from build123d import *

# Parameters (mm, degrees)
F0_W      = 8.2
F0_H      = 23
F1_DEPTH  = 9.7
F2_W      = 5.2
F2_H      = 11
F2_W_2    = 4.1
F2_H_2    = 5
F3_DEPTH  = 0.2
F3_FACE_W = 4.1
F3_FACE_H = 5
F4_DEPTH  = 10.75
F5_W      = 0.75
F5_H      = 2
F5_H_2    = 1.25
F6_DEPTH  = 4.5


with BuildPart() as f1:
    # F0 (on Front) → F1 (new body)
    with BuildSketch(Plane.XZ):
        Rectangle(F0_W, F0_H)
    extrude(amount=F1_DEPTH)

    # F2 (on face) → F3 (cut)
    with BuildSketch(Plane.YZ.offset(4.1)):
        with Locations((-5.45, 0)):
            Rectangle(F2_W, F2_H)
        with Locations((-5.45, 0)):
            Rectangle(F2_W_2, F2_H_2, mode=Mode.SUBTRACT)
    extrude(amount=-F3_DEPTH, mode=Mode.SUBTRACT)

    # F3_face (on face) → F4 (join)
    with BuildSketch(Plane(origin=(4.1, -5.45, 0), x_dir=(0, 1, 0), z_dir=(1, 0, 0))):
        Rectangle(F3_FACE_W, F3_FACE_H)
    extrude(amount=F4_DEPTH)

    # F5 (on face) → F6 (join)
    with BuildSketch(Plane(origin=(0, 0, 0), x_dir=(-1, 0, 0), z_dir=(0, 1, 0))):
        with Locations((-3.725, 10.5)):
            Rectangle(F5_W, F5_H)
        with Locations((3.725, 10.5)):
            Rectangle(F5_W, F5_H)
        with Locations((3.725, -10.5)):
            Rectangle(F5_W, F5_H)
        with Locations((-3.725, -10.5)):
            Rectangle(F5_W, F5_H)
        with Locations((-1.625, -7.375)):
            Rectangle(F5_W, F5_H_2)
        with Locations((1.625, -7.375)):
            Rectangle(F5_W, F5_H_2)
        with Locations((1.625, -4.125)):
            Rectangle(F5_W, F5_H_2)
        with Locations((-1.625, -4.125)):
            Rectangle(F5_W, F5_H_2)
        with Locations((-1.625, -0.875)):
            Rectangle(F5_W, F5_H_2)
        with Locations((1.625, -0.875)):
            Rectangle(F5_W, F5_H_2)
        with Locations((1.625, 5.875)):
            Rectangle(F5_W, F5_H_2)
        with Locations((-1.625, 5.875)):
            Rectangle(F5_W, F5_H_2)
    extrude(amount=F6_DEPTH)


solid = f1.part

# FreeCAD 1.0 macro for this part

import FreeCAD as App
import Part
import Sketcher
from FreeCAD import Vector

doc = App.newDocument("Part")
body = doc.addObject("PartDesign::Body", "Body")

# Sketch on XZ plane
sketch1 = doc.addObject("Sketcher::SketchObject", "Sketch")
body.addObject(sketch1)
sketch1.AttachmentSupport = (doc.XZ_Plane, [""])
sketch1.MapMode = "FlatFace"
sketch1.addGeometry(Part.LineSegment(Vector(-4.1, 11.5, 0), Vector(-4.1, -11.5, 0)), False)
sketch1.addGeometry(Part.LineSegment(Vector(-4.1, -11.5, 0), Vector(4.1, -11.5, 0)), False)
sketch1.addGeometry(Part.LineSegment(Vector(4.1, -11.5, 0), Vector(4.1, 11.5, 0)), False)
sketch1.addGeometry(Part.LineSegment(Vector(4.1, 11.5, 0), Vector(-4.1, 11.5, 0)), False)
sketch1.addConstraint(Sketcher.Constraint("Coincident", 0, 2, 1, 1))
sketch1.addConstraint(Sketcher.Constraint("Coincident", 1, 2, 2, 1))
sketch1.addConstraint(Sketcher.Constraint("Coincident", 2, 2, 3, 1))
sketch1.addConstraint(Sketcher.Constraint("Coincident", 3, 2, 0, 1))
sketch1.addConstraint(Sketcher.Constraint("Vertical", 0))
sketch1.addConstraint(Sketcher.Constraint("Horizontal", 1))
sketch1.addConstraint(Sketcher.Constraint("Vertical", 2))
sketch1.addConstraint(Sketcher.Constraint("Horizontal", 3))
sketch1.addConstraint(Sketcher.Constraint("Symmetric", 0, 2, 2, 2, -1, 1))
sketch1.addConstraint(Sketcher.Constraint("DistanceY", 0, 2, 0, 1, 23.0))
sketch1.addConstraint(Sketcher.Constraint("DistanceX", 1, 1, 1, 2, 8.2))
pad1 = doc.addObject("PartDesign::Pad", "Pad")
body.addObject(pad1)
pad1.Profile = sketch1
pad1.Length = 9.7

# Sketch on YZ plane
sketch2 = doc.addObject("Sketcher::SketchObject", "Sketch001")
body.addObject(sketch2)
sketch2.AttachmentSupport = (doc.YZ_Plane, [""])
sketch2.MapMode = "FlatFace"
sketch2.AttachmentOffset = App.Placement(Vector(0, 0, 4.1), App.Rotation())
sketch2.addGeometry(Part.LineSegment(Vector(-8.05, 5.5, 0), Vector(-8.05, -5.5, 0)), False)
sketch2.addGeometry(Part.LineSegment(Vector(-8.05, -5.5, 0), Vector(-2.85, -5.5, 0)), False)
sketch2.addGeometry(Part.LineSegment(Vector(-2.85, -5.5, 0), Vector(-2.85, 5.5, 0)), False)
sketch2.addGeometry(Part.LineSegment(Vector(-2.85, 5.5, 0), Vector(-8.05, 5.5, 0)), False)
sketch2.addGeometry(Part.LineSegment(Vector(-3.4, -2.5, 0), Vector(-7.5, -2.5, 0)), False)
sketch2.addGeometry(Part.LineSegment(Vector(-7.5, -2.5, 0), Vector(-7.5, 2.5, 0)), False)
sketch2.addGeometry(Part.LineSegment(Vector(-7.5, 2.5, 0), Vector(-3.4, 2.5, 0)), False)
sketch2.addGeometry(Part.LineSegment(Vector(-3.4, 2.5, 0), Vector(-3.4, -2.5, 0)), False)
sketch2.addConstraint(Sketcher.Constraint("Coincident", 0, 2, 1, 1))
sketch2.addConstraint(Sketcher.Constraint("Coincident", 1, 2, 2, 1))
sketch2.addConstraint(Sketcher.Constraint("Coincident", 2, 2, 3, 1))
sketch2.addConstraint(Sketcher.Constraint("Coincident", 3, 2, 0, 1))
sketch2.addConstraint(Sketcher.Constraint("Coincident", 4, 2, 5, 1))
sketch2.addConstraint(Sketcher.Constraint("Coincident", 5, 2, 6, 1))
sketch2.addConstraint(Sketcher.Constraint("Coincident", 6, 2, 7, 1))
sketch2.addConstraint(Sketcher.Constraint("Coincident", 7, 2, 4, 1))
sketch2.addConstraint(Sketcher.Constraint("Vertical", 0))
sketch2.addConstraint(Sketcher.Constraint("Horizontal", 1))
sketch2.addConstraint(Sketcher.Constraint("Vertical", 2))
sketch2.addConstraint(Sketcher.Constraint("Horizontal", 3))
sketch2.addConstraint(Sketcher.Constraint("Horizontal", 4))
sketch2.addConstraint(Sketcher.Constraint("Vertical", 5))
sketch2.addConstraint(Sketcher.Constraint("Horizontal", 6))
sketch2.addConstraint(Sketcher.Constraint("Vertical", 7))
sketch2.addConstraint(Sketcher.Constraint("DistanceY", 0, 2, 0, 1, 11.0))
sketch2.addConstraint(Sketcher.Constraint("DistanceY", 5, 1, 5, 2, 5.0))
sketch2.addConstraint(Sketcher.Constraint("DistanceX", 1, 1, 1, 2, 5.2))
sketch2.addConstraint(Sketcher.Constraint("DistanceX", 4, 2, 4, 1, 4.1))
sketch2.addConstraint(Sketcher.Constraint("DistanceY", 0, 2, 4, 2, 3.0))
sketch2.addConstraint(Sketcher.Constraint("DistanceY", 0, 2, -1, 1, 5.5))
sketch2.addConstraint(Sketcher.Constraint("DistanceX", 4, 2, -1, 1, 7.5))
sketch2.addConstraint(Sketcher.Constraint("DistanceX", 0, 2, -1, 1, 8.05))
pocket1 = doc.addObject("PartDesign::Pocket", "Pocket")
body.addObject(pocket1)
pocket1.Profile = sketch2
pocket1.Length = 0.2

# Sketch on YZ plane
sketch3 = doc.addObject("Sketcher::SketchObject", "Sketch002")
body.addObject(sketch3)
sketch3.AttachmentSupport = (doc.YZ_Plane, [""])
sketch3.MapMode = "FlatFace"
sketch3.AttachmentOffset = App.Placement(Vector(0, 0, 4.1), App.Rotation())
sketch3.addGeometry(Part.LineSegment(Vector(-7.5, 2.5, 0), Vector(-7.5, -2.5, 0)), False)
sketch3.addGeometry(Part.LineSegment(Vector(-7.5, -2.5, 0), Vector(-3.4, -2.5, 0)), False)
sketch3.addGeometry(Part.LineSegment(Vector(-3.4, -2.5, 0), Vector(-3.4, 2.5, 0)), False)
sketch3.addGeometry(Part.LineSegment(Vector(-3.4, 2.5, 0), Vector(-7.5, 2.5, 0)), False)
sketch3.addConstraint(Sketcher.Constraint("Coincident", 0, 2, 1, 1))
sketch3.addConstraint(Sketcher.Constraint("Coincident", 1, 2, 2, 1))
sketch3.addConstraint(Sketcher.Constraint("Coincident", 2, 2, 3, 1))
sketch3.addConstraint(Sketcher.Constraint("Coincident", 3, 2, 0, 1))
sketch3.addConstraint(Sketcher.Constraint("Vertical", 0))
sketch3.addConstraint(Sketcher.Constraint("Horizontal", 1))
sketch3.addConstraint(Sketcher.Constraint("Vertical", 2))
sketch3.addConstraint(Sketcher.Constraint("Horizontal", 3))
sketch3.addConstraint(Sketcher.Constraint("DistanceY", 0, 2, 0, 1, 5.0))
sketch3.addConstraint(Sketcher.Constraint("DistanceX", 1, 1, 1, 2, 4.1))
sketch3.addConstraint(Sketcher.Constraint("DistanceX", 0, 2, -1, 1, 7.5))
sketch3.addConstraint(Sketcher.Constraint("DistanceY", 0, 2, -1, 1, 2.5))
pad2 = doc.addObject("PartDesign::Pad", "Pad001")
body.addObject(pad2)
pad2.Profile = sketch3
pad2.Length = 10.75

# Sketch on XZ plane
sketch4 = doc.addObject("Sketcher::SketchObject", "Sketch003")
body.addObject(sketch4)
sketch4.AttachmentSupport = (doc.XZ_Plane, [""])
sketch4.MapMode = "FlatFace"
sketch4.addGeometry(Part.LineSegment(Vector(4.1, 11.5, 0), Vector(4.1, 9.5, 0)), False)
sketch4.addGeometry(Part.LineSegment(Vector(4.1, 9.5, 0), Vector(3.35, 9.5, 0)), False)
sketch4.addGeometry(Part.LineSegment(Vector(3.35, 9.5, 0), Vector(3.35, 11.5, 0)), False)
sketch4.addGeometry(Part.LineSegment(Vector(3.35, 11.5, 0), Vector(4.1, 11.5, 0)), False)
sketch4.addGeometry(Part.LineSegment(Vector(-3.35, 11.5, 0), Vector(-3.35, 9.5, 0)), False)
sketch4.addGeometry(Part.LineSegment(Vector(-3.35, 9.5, 0), Vector(-4.1, 9.5, 0)), False)
sketch4.addGeometry(Part.LineSegment(Vector(-4.1, 9.5, 0), Vector(-4.1, 11.5, 0)), False)
sketch4.addGeometry(Part.LineSegment(Vector(-4.1, 11.5, 0), Vector(-3.35, 11.5, 0)), False)
sketch4.addGeometry(Part.LineSegment(Vector(-3.35, -9.5, 0), Vector(-3.35, -11.5, 0)), False)
sketch4.addGeometry(Part.LineSegment(Vector(-3.35, -11.5, 0), Vector(-4.1, -11.5, 0)), False)
sketch4.addGeometry(Part.LineSegment(Vector(-4.1, -11.5, 0), Vector(-4.1, -9.5, 0)), False)
sketch4.addGeometry(Part.LineSegment(Vector(-4.1, -9.5, 0), Vector(-3.35, -9.5, 0)), False)
sketch4.addGeometry(Part.LineSegment(Vector(4.1, -9.5, 0), Vector(4.1, -11.5, 0)), False)
sketch4.addGeometry(Part.LineSegment(Vector(4.1, -11.5, 0), Vector(3.35, -11.5, 0)), False)
sketch4.addGeometry(Part.LineSegment(Vector(3.35, -11.5, 0), Vector(3.35, -9.5, 0)), False)
sketch4.addGeometry(Part.LineSegment(Vector(3.35, -9.5, 0), Vector(4.1, -9.5, 0)), False)
sketch4.addGeometry(Part.LineSegment(Vector(2, -6.75, 0), Vector(2, -8, 0)), False)
sketch4.addGeometry(Part.LineSegment(Vector(2, -8, 0), Vector(1.25, -8, 0)), False)
sketch4.addGeometry(Part.LineSegment(Vector(1.25, -8, 0), Vector(1.25, -6.75, 0)), False)
sketch4.addGeometry(Part.LineSegment(Vector(1.25, -6.75, 0), Vector(2, -6.75, 0)), False)
sketch4.addGeometry(Part.LineSegment(Vector(-1.25, -6.75, 0), Vector(-1.25, -8, 0)), False)
sketch4.addGeometry(Part.LineSegment(Vector(-1.25, -8, 0), Vector(-2, -8, 0)), False)
sketch4.addGeometry(Part.LineSegment(Vector(-2, -8, 0), Vector(-2, -6.75, 0)), False)
sketch4.addGeometry(Part.LineSegment(Vector(-2, -6.75, 0), Vector(-1.25, -6.75, 0)), False)
sketch4.addGeometry(Part.LineSegment(Vector(-1.25, -3.5, 0), Vector(-1.25, -4.75, 0)), False)
sketch4.addGeometry(Part.LineSegment(Vector(-1.25, -4.75, 0), Vector(-2, -4.75, 0)), False)
sketch4.addGeometry(Part.LineSegment(Vector(-2, -4.75, 0), Vector(-2, -3.5, 0)), False)
sketch4.addGeometry(Part.LineSegment(Vector(-2, -3.5, 0), Vector(-1.25, -3.5, 0)), False)
sketch4.addGeometry(Part.LineSegment(Vector(2, -3.5, 0), Vector(2, -4.75, 0)), False)
sketch4.addGeometry(Part.LineSegment(Vector(2, -4.75, 0), Vector(1.25, -4.75, 0)), False)
sketch4.addGeometry(Part.LineSegment(Vector(1.25, -4.75, 0), Vector(1.25, -3.5, 0)), False)
sketch4.addGeometry(Part.LineSegment(Vector(1.25, -3.5, 0), Vector(2, -3.5, 0)), False)
sketch4.addGeometry(Part.LineSegment(Vector(2, -0.25, 0), Vector(2, -1.5, 0)), False)
sketch4.addGeometry(Part.LineSegment(Vector(2, -1.5, 0), Vector(1.25, -1.5, 0)), False)
sketch4.addGeometry(Part.LineSegment(Vector(1.25, -1.5, 0), Vector(1.25, -0.25, 0)), False)
sketch4.addGeometry(Part.LineSegment(Vector(1.25, -0.25, 0), Vector(2, -0.25, 0)), False)
sketch4.addGeometry(Part.LineSegment(Vector(-1.25, -0.25, 0), Vector(-1.25, -1.5, 0)), False)
sketch4.addGeometry(Part.LineSegment(Vector(-1.25, -1.5, 0), Vector(-2, -1.5, 0)), False)
sketch4.addGeometry(Part.LineSegment(Vector(-2, -1.5, 0), Vector(-2, -0.25, 0)), False)
sketch4.addGeometry(Part.LineSegment(Vector(-2, -0.25, 0), Vector(-1.25, -0.25, 0)), False)
sketch4.addGeometry(Part.LineSegment(Vector(-1.25, 6.5, 0), Vector(-1.25, 5.25, 0)), False)
sketch4.addGeometry(Part.LineSegment(Vector(-1.25, 5.25, 0), Vector(-2, 5.25, 0)), False)
sketch4.addGeometry(Part.LineSegment(Vector(-2, 5.25, 0), Vector(-2, 6.5, 0)), False)
sketch4.addGeometry(Part.LineSegment(Vector(-2, 6.5, 0), Vector(-1.25, 6.5, 0)), False)
sketch4.addGeometry(Part.LineSegment(Vector(2, 6.5, 0), Vector(2, 5.25, 0)), False)
sketch4.addGeometry(Part.LineSegment(Vector(2, 5.25, 0), Vector(1.25, 5.25, 0)), False)
sketch4.addGeometry(Part.LineSegment(Vector(1.25, 5.25, 0), Vector(1.25, 6.5, 0)), False)
sketch4.addGeometry(Part.LineSegment(Vector(1.25, 6.5, 0), Vector(2, 6.5, 0)), False)
sketch4.addConstraint(Sketcher.Constraint("Coincident", 0, 2, 1, 1))
sketch4.addConstraint(Sketcher.Constraint("Coincident", 1, 2, 2, 1))
sketch4.addConstraint(Sketcher.Constraint("Coincident", 2, 2, 3, 1))
sketch4.addConstraint(Sketcher.Constraint("Coincident", 3, 2, 0, 1))
sketch4.addConstraint(Sketcher.Constraint("Coincident", 4, 2, 5, 1))
sketch4.addConstraint(Sketcher.Constraint("Coincident", 5, 2, 6, 1))
sketch4.addConstraint(Sketcher.Constraint("Coincident", 6, 2, 7, 1))
sketch4.addConstraint(Sketcher.Constraint("Coincident", 7, 2, 4, 1))
sketch4.addConstraint(Sketcher.Constraint("Coincident", 8, 2, 9, 1))
sketch4.addConstraint(Sketcher.Constraint("Coincident", 9, 2, 10, 1))
sketch4.addConstraint(Sketcher.Constraint("Coincident", 10, 2, 11, 1))
sketch4.addConstraint(Sketcher.Constraint("Coincident", 11, 2, 8, 1))
sketch4.addConstraint(Sketcher.Constraint("Coincident", 12, 2, 13, 1))
sketch4.addConstraint(Sketcher.Constraint("Coincident", 13, 2, 14, 1))
sketch4.addConstraint(Sketcher.Constraint("Coincident", 14, 2, 15, 1))
sketch4.addConstraint(Sketcher.Constraint("Coincident", 15, 2, 12, 1))
sketch4.addConstraint(Sketcher.Constraint("Coincident", 16, 2, 17, 1))
sketch4.addConstraint(Sketcher.Constraint("Coincident", 17, 2, 18, 1))
sketch4.addConstraint(Sketcher.Constraint("Coincident", 18, 2, 19, 1))
sketch4.addConstraint(Sketcher.Constraint("Coincident", 19, 2, 16, 1))
sketch4.addConstraint(Sketcher.Constraint("Coincident", 20, 2, 21, 1))
sketch4.addConstraint(Sketcher.Constraint("Coincident", 21, 2, 22, 1))
sketch4.addConstraint(Sketcher.Constraint("Coincident", 22, 2, 23, 1))
sketch4.addConstraint(Sketcher.Constraint("Coincident", 23, 2, 20, 1))
sketch4.addConstraint(Sketcher.Constraint("Coincident", 24, 2, 25, 1))
sketch4.addConstraint(Sketcher.Constraint("Coincident", 25, 2, 26, 1))
sketch4.addConstraint(Sketcher.Constraint("Coincident", 26, 2, 27, 1))
sketch4.addConstraint(Sketcher.Constraint("Coincident", 27, 2, 24, 1))
sketch4.addConstraint(Sketcher.Constraint("Coincident", 28, 2, 29, 1))
sketch4.addConstraint(Sketcher.Constraint("Coincident", 29, 2, 30, 1))
sketch4.addConstraint(Sketcher.Constraint("Coincident", 30, 2, 31, 1))
sketch4.addConstraint(Sketcher.Constraint("Coincident", 31, 2, 28, 1))
sketch4.addConstraint(Sketcher.Constraint("Coincident", 32, 2, 33, 1))
sketch4.addConstraint(Sketcher.Constraint("Coincident", 33, 2, 34, 1))
sketch4.addConstraint(Sketcher.Constraint("Coincident", 34, 2, 35, 1))
sketch4.addConstraint(Sketcher.Constraint("Coincident", 35, 2, 32, 1))
sketch4.addConstraint(Sketcher.Constraint("Coincident", 36, 2, 37, 1))
sketch4.addConstraint(Sketcher.Constraint("Coincident", 37, 2, 38, 1))
sketch4.addConstraint(Sketcher.Constraint("Coincident", 38, 2, 39, 1))
sketch4.addConstraint(Sketcher.Constraint("Coincident", 39, 2, 36, 1))
sketch4.addConstraint(Sketcher.Constraint("Coincident", 40, 2, 41, 1))
sketch4.addConstraint(Sketcher.Constraint("Coincident", 41, 2, 42, 1))
sketch4.addConstraint(Sketcher.Constraint("Coincident", 42, 2, 43, 1))
sketch4.addConstraint(Sketcher.Constraint("Coincident", 43, 2, 40, 1))
sketch4.addConstraint(Sketcher.Constraint("Coincident", 44, 2, 45, 1))
sketch4.addConstraint(Sketcher.Constraint("Coincident", 45, 2, 46, 1))
sketch4.addConstraint(Sketcher.Constraint("Coincident", 46, 2, 47, 1))
sketch4.addConstraint(Sketcher.Constraint("Coincident", 47, 2, 44, 1))
sketch4.addConstraint(Sketcher.Constraint("Vertical", 0))
sketch4.addConstraint(Sketcher.Constraint("Horizontal", 1))
sketch4.addConstraint(Sketcher.Constraint("Vertical", 2))
sketch4.addConstraint(Sketcher.Constraint("Horizontal", 3))
sketch4.addConstraint(Sketcher.Constraint("Vertical", 4))
sketch4.addConstraint(Sketcher.Constraint("Horizontal", 5))
sketch4.addConstraint(Sketcher.Constraint("Vertical", 6))
sketch4.addConstraint(Sketcher.Constraint("Horizontal", 7))
sketch4.addConstraint(Sketcher.Constraint("Vertical", 8))
sketch4.addConstraint(Sketcher.Constraint("Horizontal", 9))
sketch4.addConstraint(Sketcher.Constraint("Vertical", 10))
sketch4.addConstraint(Sketcher.Constraint("Horizontal", 11))
sketch4.addConstraint(Sketcher.Constraint("Vertical", 12))
sketch4.addConstraint(Sketcher.Constraint("Horizontal", 13))
sketch4.addConstraint(Sketcher.Constraint("Vertical", 14))
sketch4.addConstraint(Sketcher.Constraint("Horizontal", 15))
sketch4.addConstraint(Sketcher.Constraint("Vertical", 16))
sketch4.addConstraint(Sketcher.Constraint("Horizontal", 17))
sketch4.addConstraint(Sketcher.Constraint("Vertical", 18))
sketch4.addConstraint(Sketcher.Constraint("Horizontal", 19))
sketch4.addConstraint(Sketcher.Constraint("Vertical", 20))
sketch4.addConstraint(Sketcher.Constraint("Horizontal", 21))
sketch4.addConstraint(Sketcher.Constraint("Vertical", 22))
sketch4.addConstraint(Sketcher.Constraint("Horizontal", 23))
sketch4.addConstraint(Sketcher.Constraint("Vertical", 24))
sketch4.addConstraint(Sketcher.Constraint("Horizontal", 25))
sketch4.addConstraint(Sketcher.Constraint("Vertical", 26))
sketch4.addConstraint(Sketcher.Constraint("Horizontal", 27))
sketch4.addConstraint(Sketcher.Constraint("Vertical", 28))
sketch4.addConstraint(Sketcher.Constraint("Horizontal", 29))
sketch4.addConstraint(Sketcher.Constraint("Vertical", 30))
sketch4.addConstraint(Sketcher.Constraint("Horizontal", 31))
sketch4.addConstraint(Sketcher.Constraint("Vertical", 32))
sketch4.addConstraint(Sketcher.Constraint("Horizontal", 33))
sketch4.addConstraint(Sketcher.Constraint("Vertical", 34))
sketch4.addConstraint(Sketcher.Constraint("Horizontal", 35))
sketch4.addConstraint(Sketcher.Constraint("Vertical", 36))
sketch4.addConstraint(Sketcher.Constraint("Horizontal", 37))
sketch4.addConstraint(Sketcher.Constraint("Vertical", 38))
sketch4.addConstraint(Sketcher.Constraint("Horizontal", 39))
sketch4.addConstraint(Sketcher.Constraint("Vertical", 40))
sketch4.addConstraint(Sketcher.Constraint("Horizontal", 41))
sketch4.addConstraint(Sketcher.Constraint("Vertical", 42))
sketch4.addConstraint(Sketcher.Constraint("Horizontal", 43))
sketch4.addConstraint(Sketcher.Constraint("Vertical", 44))
sketch4.addConstraint(Sketcher.Constraint("Horizontal", 45))
sketch4.addConstraint(Sketcher.Constraint("Vertical", 46))
sketch4.addConstraint(Sketcher.Constraint("Horizontal", 47))
sketch4.addConstraint(Sketcher.Constraint("Symmetric", 2, 2, 8, 2, -1, 1))
sketch4.addConstraint(Sketcher.Constraint("Symmetric", 0, 2, 10, 2, -1, 1))
sketch4.addConstraint(Sketcher.Constraint("Symmetric", 6, 2, 12, 2, -1, 1))
sketch4.addConstraint(Sketcher.Constraint("Symmetric", 4, 2, 14, 2, -1, 1))
sketch4.addConstraint(Sketcher.Constraint("Symmetric", 1, 2, 4, 2, -2))
sketch4.addConstraint(Sketcher.Constraint("Symmetric", 3, 2, 6, 2, -2))
sketch4.addConstraint(Sketcher.Constraint("Symmetric", 17, 2, 20, 2, -2))
sketch4.addConstraint(Sketcher.Constraint("Symmetric", 19, 2, 22, 2, -2))
sketch4.addConstraint(Sketcher.Constraint("Symmetric", 25, 2, 28, 2, -2))
sketch4.addConstraint(Sketcher.Constraint("Symmetric", 27, 2, 30, 2, -2))
sketch4.addConstraint(Sketcher.Constraint("Symmetric", 33, 2, 36, 2, -2))
sketch4.addConstraint(Sketcher.Constraint("Symmetric", 35, 2, 38, 2, -2))
sketch4.addConstraint(Sketcher.Constraint("Symmetric", 41, 2, 44, 2, -2))
sketch4.addConstraint(Sketcher.Constraint("Symmetric", 43, 2, 46, 2, -2))
sketch4.addConstraint(Sketcher.Constraint("Vertical", 23, 2, 24, 2))
sketch4.addConstraint(Sketcher.Constraint("Vertical", 22, 2, 25, 2))
sketch4.addConstraint(Sketcher.Constraint("Vertical", 31, 2, 32, 2))
sketch4.addConstraint(Sketcher.Constraint("Vertical", 30, 2, 33, 2))
sketch4.addConstraint(Sketcher.Constraint("Vertical", 39, 2, 40, 2))
sketch4.addConstraint(Sketcher.Constraint("Vertical", 38, 2, 41, 2))
sketch4.addConstraint(Sketcher.Constraint("Equal", 15, 17))
sketch4.addConstraint(Sketcher.Constraint("Equal", 22, 24))
sketch4.addConstraint(Sketcher.Constraint("Equal", 30, 32))
sketch4.addConstraint(Sketcher.Constraint("Equal", 38, 40))
sketch4.addConstraint(Sketcher.Constraint("DistanceY", 0, 2, 0, 1, 2.0))
sketch4.addConstraint(Sketcher.Constraint("DistanceX", -1, 1, 16, 2, 2.0))
sketch4.addConstraint(Sketcher.Constraint("DistanceY", 16, 2, -1, 1, 8.0))
sketch4.addConstraint(Sketcher.Constraint("DistanceY", 8, 2, 4, 2, 21.0))
sketch4.addConstraint(Sketcher.Constraint("DistanceY", 23, 2, 24, 2, 2.0))
sketch4.addConstraint(Sketcher.Constraint("DistanceY", 31, 2, 32, 2, 2.0))
sketch4.addConstraint(Sketcher.Constraint("DistanceY", 42, 2, 4, 2, 3.0))
sketch4.addConstraint(Sketcher.Constraint("DistanceX", 1, 2, 1, 1, 0.75))
sketch4.addConstraint(Sketcher.Constraint("DistanceY", 16, 2, 16, 1, 1.25))
sketch4.addConstraint(Sketcher.Constraint("DistanceX", -1, 1, 0, 2, 4.1))
pad3 = doc.addObject("PartDesign::Pad", "Pad002")
body.addObject(pad3)
pad3.Profile = sketch4
pad3.Length = 4.5
pad3.Reversed = True

doc.recompute()
